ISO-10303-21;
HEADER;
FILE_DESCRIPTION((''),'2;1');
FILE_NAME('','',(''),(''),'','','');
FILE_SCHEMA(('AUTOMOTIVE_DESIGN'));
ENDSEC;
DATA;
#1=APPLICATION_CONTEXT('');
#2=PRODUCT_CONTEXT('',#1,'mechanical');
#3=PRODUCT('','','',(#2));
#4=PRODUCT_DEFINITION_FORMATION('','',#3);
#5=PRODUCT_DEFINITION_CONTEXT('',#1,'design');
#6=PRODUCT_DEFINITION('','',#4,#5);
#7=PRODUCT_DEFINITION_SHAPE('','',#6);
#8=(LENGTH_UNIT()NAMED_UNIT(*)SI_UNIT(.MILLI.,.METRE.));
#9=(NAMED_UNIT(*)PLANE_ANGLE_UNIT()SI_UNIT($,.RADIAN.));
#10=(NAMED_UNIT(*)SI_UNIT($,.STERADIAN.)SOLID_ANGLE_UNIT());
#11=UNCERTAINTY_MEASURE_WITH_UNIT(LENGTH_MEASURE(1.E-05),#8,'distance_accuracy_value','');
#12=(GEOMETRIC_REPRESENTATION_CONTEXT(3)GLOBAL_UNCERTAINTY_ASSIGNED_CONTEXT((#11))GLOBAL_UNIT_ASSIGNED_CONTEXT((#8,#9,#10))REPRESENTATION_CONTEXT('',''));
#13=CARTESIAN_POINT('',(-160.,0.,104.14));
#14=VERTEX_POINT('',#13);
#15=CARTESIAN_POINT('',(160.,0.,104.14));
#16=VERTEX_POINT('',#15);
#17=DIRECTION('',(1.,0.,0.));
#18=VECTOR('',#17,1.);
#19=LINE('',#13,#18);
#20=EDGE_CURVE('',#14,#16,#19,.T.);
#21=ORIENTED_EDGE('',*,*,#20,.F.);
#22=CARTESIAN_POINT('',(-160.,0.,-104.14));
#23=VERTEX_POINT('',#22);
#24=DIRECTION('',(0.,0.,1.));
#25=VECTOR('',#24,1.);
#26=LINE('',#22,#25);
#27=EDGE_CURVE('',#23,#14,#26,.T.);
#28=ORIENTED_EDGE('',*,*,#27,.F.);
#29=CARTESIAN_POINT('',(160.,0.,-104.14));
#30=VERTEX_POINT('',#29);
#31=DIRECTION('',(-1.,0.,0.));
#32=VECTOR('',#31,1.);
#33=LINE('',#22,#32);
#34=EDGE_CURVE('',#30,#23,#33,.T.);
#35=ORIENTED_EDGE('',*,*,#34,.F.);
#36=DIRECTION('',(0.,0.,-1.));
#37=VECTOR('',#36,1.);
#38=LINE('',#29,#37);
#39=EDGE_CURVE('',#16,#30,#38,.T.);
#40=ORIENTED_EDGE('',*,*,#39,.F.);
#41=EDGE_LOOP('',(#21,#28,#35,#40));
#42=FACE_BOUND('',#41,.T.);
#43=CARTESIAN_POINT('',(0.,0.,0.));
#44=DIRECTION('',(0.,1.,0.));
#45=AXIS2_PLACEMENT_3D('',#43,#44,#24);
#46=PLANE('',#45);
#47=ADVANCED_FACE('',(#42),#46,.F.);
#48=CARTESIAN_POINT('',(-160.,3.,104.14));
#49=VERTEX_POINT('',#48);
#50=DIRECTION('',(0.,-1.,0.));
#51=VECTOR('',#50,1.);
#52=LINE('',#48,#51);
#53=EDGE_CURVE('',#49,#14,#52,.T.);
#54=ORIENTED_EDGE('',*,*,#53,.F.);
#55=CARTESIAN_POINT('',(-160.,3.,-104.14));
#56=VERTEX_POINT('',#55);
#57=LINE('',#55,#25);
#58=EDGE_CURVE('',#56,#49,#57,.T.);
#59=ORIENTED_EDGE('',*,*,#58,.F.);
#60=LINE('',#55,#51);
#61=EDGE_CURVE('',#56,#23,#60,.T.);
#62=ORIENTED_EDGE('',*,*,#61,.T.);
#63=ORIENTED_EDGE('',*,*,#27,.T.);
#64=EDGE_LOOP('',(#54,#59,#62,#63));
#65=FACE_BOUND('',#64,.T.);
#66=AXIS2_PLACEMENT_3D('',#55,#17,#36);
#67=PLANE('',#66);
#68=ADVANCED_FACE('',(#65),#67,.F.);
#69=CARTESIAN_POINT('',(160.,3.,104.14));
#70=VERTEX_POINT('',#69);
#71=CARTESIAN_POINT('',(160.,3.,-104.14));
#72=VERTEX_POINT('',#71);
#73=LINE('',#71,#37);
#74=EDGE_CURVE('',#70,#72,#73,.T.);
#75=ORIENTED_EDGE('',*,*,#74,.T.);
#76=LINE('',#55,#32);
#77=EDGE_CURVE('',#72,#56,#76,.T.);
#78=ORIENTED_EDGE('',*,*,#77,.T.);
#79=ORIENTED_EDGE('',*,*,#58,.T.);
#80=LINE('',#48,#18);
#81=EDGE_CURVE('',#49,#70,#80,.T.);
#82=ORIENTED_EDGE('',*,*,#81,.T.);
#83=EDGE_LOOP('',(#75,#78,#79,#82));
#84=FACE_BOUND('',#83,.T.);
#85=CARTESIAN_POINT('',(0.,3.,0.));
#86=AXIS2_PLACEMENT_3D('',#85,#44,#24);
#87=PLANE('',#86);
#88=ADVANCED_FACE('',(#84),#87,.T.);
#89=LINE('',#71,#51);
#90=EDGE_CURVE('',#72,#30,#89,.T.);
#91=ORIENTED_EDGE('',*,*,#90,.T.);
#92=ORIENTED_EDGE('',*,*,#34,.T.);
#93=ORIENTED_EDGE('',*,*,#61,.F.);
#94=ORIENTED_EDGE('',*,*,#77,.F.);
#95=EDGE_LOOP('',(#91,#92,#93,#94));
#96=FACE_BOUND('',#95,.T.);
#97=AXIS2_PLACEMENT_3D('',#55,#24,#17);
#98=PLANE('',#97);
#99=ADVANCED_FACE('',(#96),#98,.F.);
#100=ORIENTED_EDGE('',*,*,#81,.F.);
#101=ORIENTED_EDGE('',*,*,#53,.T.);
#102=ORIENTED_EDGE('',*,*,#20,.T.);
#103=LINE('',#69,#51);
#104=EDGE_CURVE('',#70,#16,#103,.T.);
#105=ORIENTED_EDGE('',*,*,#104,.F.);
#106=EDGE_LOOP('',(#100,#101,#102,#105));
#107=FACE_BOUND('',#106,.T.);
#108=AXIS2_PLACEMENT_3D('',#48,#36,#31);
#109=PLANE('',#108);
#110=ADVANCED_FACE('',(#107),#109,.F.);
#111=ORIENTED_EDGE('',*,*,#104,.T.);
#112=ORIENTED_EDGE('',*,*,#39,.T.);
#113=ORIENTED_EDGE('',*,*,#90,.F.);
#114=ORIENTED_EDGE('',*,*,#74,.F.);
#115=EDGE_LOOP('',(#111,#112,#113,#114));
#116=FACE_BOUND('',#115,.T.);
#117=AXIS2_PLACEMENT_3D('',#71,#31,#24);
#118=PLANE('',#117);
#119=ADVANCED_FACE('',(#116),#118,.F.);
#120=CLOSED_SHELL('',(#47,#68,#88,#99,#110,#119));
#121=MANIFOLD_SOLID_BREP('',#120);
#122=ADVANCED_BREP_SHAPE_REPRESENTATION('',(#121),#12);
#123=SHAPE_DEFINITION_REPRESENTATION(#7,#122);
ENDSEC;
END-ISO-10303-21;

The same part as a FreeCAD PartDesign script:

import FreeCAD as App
import Part
import Sketcher
Q = App.Units.Quantity


def add_polygon(sketch, points):
    """Adds a closed chain of lines whose ends are joined by coincident constraints."""
    first, n = sketch.GeometryCount, len(points)
    for a, b in zip(points, points[1:] + points[:1]):
        sketch.addGeometry(Part.LineSegment(App.Vector(*a, 0), App.Vector(*b, 0)), False)
    for i in range(n):
        sketch.addConstraint(Sketcher.Constraint("Coincident", first + i, 2, first + (i + 1) % n, 1))

doc = App.newDocument("Part")
params = doc.addObject("Spreadsheet::Sheet", "Params")
for row, (alias, value) in enumerate([
    ("sketch1_width", "320 mm"),
    ("sketch1_height", "208.28 mm"),
    ("pad1_length", "3 mm"),
], start=1):
    params.set(f"A{row}", alias)
    params.set(f"B{row}", "=" + value)
    params.setAlias(f"B{row}", alias)

body = doc.addObject("PartDesign::Body", "Body")

sketch1 = body.newObject("Sketcher::SketchObject", "Sketch")
sketch1.AttachmentSupport = (doc.getObject("XZ_Plane"), [""])
sketch1.MapMode = "FlatFace"
add_polygon(sketch1, [(-160, -104), (-160, 104), (160, 104), (160, -104)])
sketch1.addConstraint(Sketcher.Constraint("Vertical", 0))
sketch1.addConstraint(Sketcher.Constraint("Horizontal", 1))
sketch1.addConstraint(Sketcher.Constraint("Vertical", 2))
sketch1.addConstraint(Sketcher.Constraint("Horizontal", 3))
sketch1.addConstraint(Sketcher.Constraint("Symmetric", 0, 2, 2, 2, -1, 1))
sketch1.addConstraint(Sketcher.Constraint("DistanceX", 1, 1, 1, 2, Q("320 mm")))
sketch1.addConstraint(Sketcher.Constraint("DistanceY", 0, 1, 0, 2, Q("208.28 mm")))
sketch1.setExpression("Constraints[9]", "Params.sketch1_width")
sketch1.setExpression("Constraints[10]", "Params.sketch1_height")
pad1 = body.newObject("PartDesign::Pad", "Pad")
pad1.Profile = sketch1
pad1.setExpression("Length", "Params.pad1_length")
pad1.Reversed = True

doc.recompute()
